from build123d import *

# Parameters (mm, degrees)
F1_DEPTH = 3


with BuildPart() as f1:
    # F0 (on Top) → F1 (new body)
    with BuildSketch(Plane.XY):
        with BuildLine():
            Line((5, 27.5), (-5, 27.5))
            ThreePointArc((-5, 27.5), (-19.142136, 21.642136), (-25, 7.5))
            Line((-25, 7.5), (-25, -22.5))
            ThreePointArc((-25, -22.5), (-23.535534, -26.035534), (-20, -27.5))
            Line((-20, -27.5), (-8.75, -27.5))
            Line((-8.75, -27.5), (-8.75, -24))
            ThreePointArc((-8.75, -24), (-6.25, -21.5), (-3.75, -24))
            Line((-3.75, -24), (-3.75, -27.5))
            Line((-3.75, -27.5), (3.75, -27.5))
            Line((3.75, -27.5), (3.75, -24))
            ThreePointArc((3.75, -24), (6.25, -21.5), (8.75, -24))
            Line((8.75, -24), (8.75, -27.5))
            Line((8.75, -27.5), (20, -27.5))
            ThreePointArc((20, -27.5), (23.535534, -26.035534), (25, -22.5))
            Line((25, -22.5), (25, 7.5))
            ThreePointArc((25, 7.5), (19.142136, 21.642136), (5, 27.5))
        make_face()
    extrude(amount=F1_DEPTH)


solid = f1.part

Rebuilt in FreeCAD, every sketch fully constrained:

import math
import FreeCAD as App
import Part
import Sketcher

V = App.Vector

doc = App.newDocument("Part")
body = doc.addObject("PartDesign::Body", "Body")

# Sketch on XY plane
sketch1 = body.newObject("Sketcher::SketchObject", "Sketch")
sketch1.AttachmentSupport = (doc.getObject("XY_Plane"), [""])
sketch1.MapMode = "FlatFace"
sketch1.addGeometry([
    Part.LineSegment(V(5, 27.5, 0), V(-5, 27.5, 0)),  # 0
    Part.ArcOfCircle(Part.Circle(V(-5.000001, 7.500001, 0), V(0, 0, 1), 19.999999), math.radians(89.999996), math.radians(180.000004)),  # 1
    Part.LineSegment(V(-25, 7.5, 0), V(-25, -22.5, 0)),  # 2
    Part.ArcOfCircle(Part.Circle(V(-20, -22.5, 0), V(0, 0, 1), 5), math.radians(179.999996), math.radians(270.000004)),  # 3
    Part.LineSegment(V(-20, -27.5, 0), V(-8.75, -27.5, 0)),  # 4
    Part.LineSegment(V(-8.75, -27.5, 0), V(-8.75, -24, 0)),  # 5
    Part.ArcOfCircle(Part.Circle(V(-6.25, -24, 0), V(0, 0, 1), 2.5), math.radians(0), math.radians(180)),  # 6
    Part.LineSegment(V(-3.75, -24, 0), V(-3.75, -27.5, 0)),  # 7
    Part.LineSegment(V(-3.75, -27.5, 0), V(3.75, -27.5, 0)),  # 8
    Part.LineSegment(V(3.75, -27.5, 0), V(3.75, -24, 0)),  # 9
    Part.ArcOfCircle(Part.Circle(V(6.25, -24, 0), V(0, 0, 1), 2.5), math.radians(0), math.radians(180)),  # 10
    Part.LineSegment(V(8.75, -24, 0), V(8.75, -27.5, 0)),  # 11
    Part.LineSegment(V(8.75, -27.5, 0), V(20, -27.5, 0)),  # 12
    Part.ArcOfCircle(Part.Circle(V(20, -22.5, 0), V(0, 0, 1), 5), math.radians(-90.000004), math.radians(0.000004)),  # 13
    Part.LineSegment(V(25, -22.5, 0), V(25, 7.5, 0)),  # 14
    Part.ArcOfCircle(Part.Circle(V(5.000001, 7.500001, 0), V(0, 0, 1), 19.999999), math.radians(-0.000004), math.radians(90.000004)),  # 15
], False)
sketch1.addConstraint([
    Sketcher.Constraint("Tangent", 0, 2, 1, 1),
    Sketcher.Constraint("Tangent", 1, 2, 2, 1),
    Sketcher.Constraint("Tangent", 2, 2, 3, 1),
    Sketcher.Constraint("Tangent", 3, 2, 4, 1),
    Sketcher.Constraint("Coincident", 4, 2, 5, 1),
    Sketcher.Constraint("Tangent", 5, 2, 6, 2),
    Sketcher.Constraint("Tangent", 6, 1, 7, 1),
    Sketcher.Constraint("Coincident", 7, 2, 8, 1),
    Sketcher.Constraint("Coincident", 8, 2, 9, 1),
    Sketcher.Constraint("Tangent", 9, 2, 10, 2),
    Sketcher.Constraint("Tangent", 10, 1, 11, 1),
    Sketcher.Constraint("Coincident", 11, 2, 12, 1),
    Sketcher.Constraint("Tangent", 12, 2, 13, 1),
    Sketcher.Constraint("Tangent", 13, 2, 14, 1),
    Sketcher.Constraint("Tangent", 14, 2, 15, 1),
    Sketcher.Constraint("Tangent", 15, 2, 0, 1),
    Sketcher.Constraint("Horizontal", 0),
    Sketcher.Constraint("Vertical", 2),
    Sketcher.Constraint("Horizontal", 4),
    Sketcher.Constraint("Vertical", 5),
    Sketcher.Constraint("Vertical", 7),
    Sketcher.Constraint("Horizontal", 8),
    Sketcher.Constraint("Vertical", 9),
    Sketcher.Constraint("Vertical", 11),
    Sketcher.Constraint("Horizontal", 12),
    Sketcher.Constraint("Vertical", 14),
    Sketcher.Constraint("Equal", 6, 10),
    Sketcher.Constraint("Equal", 3, 13),
    Sketcher.Constraint("Equal", 1, 15),
    Sketcher.Constraint("Symmetric", 6, 3, 10, 3, -2),
    Sketcher.Constraint("Symmetric", 3, 3, 13, 3, -2),
    Sketcher.Constraint("Horizontal", 4, 2, 7, 2),
    Sketcher.Constraint("Radius", 1, 19.999999),
    Sketcher.Constraint("Radius", 3, 5.0),
    Sketcher.Constraint("Radius", 6, 2.5),
    Sketcher.Constraint("DistanceX", 0, 2, 0, 1, 10.0),
    Sketcher.Constraint("DistanceY", 2, 2, 2, 1, 30.0),
    Sketcher.Constraint("DistanceX", 8, 1, 8, 2, 7.5),
    Sketcher.Constraint("DistanceY", 5, 1, 5, 2, 3.5),
    Sketcher.Constraint("DistanceY", 6, 3, -1, 1, 24.0),
])
pad1 = body.newObject("PartDesign::Pad", "Pad")
pad1.Profile = sketch1
pad1.Length = 3

doc.recompute()
